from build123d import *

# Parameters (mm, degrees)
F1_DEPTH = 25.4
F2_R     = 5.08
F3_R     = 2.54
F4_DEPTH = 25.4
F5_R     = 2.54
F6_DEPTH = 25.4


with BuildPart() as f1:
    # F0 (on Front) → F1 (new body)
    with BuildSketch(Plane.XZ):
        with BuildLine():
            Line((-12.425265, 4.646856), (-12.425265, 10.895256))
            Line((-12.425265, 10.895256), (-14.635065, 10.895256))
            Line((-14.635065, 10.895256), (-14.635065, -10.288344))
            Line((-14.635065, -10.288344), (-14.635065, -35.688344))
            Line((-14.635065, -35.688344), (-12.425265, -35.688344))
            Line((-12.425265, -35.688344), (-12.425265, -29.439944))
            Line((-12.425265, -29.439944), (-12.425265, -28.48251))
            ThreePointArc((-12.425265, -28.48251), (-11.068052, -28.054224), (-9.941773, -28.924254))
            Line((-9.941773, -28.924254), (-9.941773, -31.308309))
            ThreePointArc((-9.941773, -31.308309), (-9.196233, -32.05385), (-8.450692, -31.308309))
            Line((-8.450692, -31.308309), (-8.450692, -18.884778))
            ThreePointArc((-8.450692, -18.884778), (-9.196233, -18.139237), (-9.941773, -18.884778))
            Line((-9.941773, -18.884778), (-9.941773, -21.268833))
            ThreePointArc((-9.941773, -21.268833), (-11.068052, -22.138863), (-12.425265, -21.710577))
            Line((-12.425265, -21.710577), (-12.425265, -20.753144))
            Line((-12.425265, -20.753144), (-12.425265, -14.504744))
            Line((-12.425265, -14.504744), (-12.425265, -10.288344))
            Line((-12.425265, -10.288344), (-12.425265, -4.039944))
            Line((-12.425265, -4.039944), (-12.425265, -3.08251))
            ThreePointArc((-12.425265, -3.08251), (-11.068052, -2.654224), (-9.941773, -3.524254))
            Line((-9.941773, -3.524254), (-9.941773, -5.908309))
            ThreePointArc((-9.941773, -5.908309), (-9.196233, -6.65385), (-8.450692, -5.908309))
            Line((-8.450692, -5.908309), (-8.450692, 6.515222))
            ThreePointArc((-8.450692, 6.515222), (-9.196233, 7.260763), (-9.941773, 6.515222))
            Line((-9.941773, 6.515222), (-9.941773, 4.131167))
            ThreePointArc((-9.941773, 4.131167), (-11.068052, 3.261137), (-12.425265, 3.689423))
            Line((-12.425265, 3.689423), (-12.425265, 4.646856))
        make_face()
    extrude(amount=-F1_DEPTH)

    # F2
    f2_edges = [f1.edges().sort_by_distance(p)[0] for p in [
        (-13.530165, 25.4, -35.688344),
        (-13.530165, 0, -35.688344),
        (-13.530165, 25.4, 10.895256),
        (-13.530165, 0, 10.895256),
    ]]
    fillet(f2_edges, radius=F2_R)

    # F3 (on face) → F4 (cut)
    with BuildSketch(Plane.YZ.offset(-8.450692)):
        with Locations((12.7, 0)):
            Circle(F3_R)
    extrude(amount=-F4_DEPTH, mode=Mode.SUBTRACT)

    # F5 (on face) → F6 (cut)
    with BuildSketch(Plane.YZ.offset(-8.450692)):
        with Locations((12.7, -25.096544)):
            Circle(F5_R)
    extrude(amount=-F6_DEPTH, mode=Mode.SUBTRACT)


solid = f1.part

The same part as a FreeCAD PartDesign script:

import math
import FreeCAD as App
import Part
import Sketcher

V = App.Vector
Q = App.Units.Quantity


def edges_at(feature, points):
    """Names of the edges that pass closest to the given points."""
    edges = feature.Shape.Edges
    near = lambda p: min(range(len(edges)), key=lambda i: edges[i].distToShape(Part.Vertex(*p))[0])
    return sorted({f"Edge{near(p) + 1}" for p in points})

doc = App.newDocument("Part")
params = doc.addObject("Spreadsheet::Sheet", "Params")
for row, (alias, value) in enumerate([
    ("sketch1_width", "0.087 in"),
    ("sketch1_height", "1.834 in"),
    ("pad1_length", "1 in"),
    ("fillet_radius", "0.2 in"),
    ("sketch2_diameter", "0.2 in"),
    ("pocket1_length", "1 in"),
    ("sketch3_diameter", "0.2 in"),
    ("pocket2_length", "1 in"),
], start=1):
    params.set(f"A{row}", alias)
    params.set(f"B{row}", "=" + value)
    params.setAlias(f"B{row}", alias)

body = doc.addObject("PartDesign::Body", "Body")

# Sketch on XZ plane
sketch1 = doc.addObject("Sketcher::SketchObject", "Sketch")
body.addObject(sketch1)
sketch1.AttachmentSupport = (doc.XZ_Plane, [""])
sketch1.MapMode = "FlatFace"
sketch1.addGeometry([
    Part.LineSegment(V(-12.425265, 10.895256, 0), V(-14.635065, 10.895256, 0)),  # 0
    Part.LineSegment(V(-14.635065, 10.895256, 0), V(-14.635065, -35.688344, 0)),  # 1
    Part.LineSegment(V(-14.635065, -35.688344, 0), V(-12.425265, -35.688344, 0)),  # 2
    Part.LineSegment(V(-12.425265, -35.688344, 0), V(-12.425265, -28.48251, 0)),  # 3
    Part.ArcOfCircle(Part.Circle(V(-11.337034, -29.566444, 0), V(0, 0, 1), 1.535956), math.radians(24.714969), math.radians(135.113355)),  # 4
    Part.LineSegment(V(-9.941773, -28.924254, 0), V(-9.941773, -31.308309, 0)),  # 5
    Part.ArcOfCircle(Part.Circle(V(-9.196233, -31.30831, 0), V(0, 0, 1), 0.745541), math.radians(179.999962), math.radians(360.000038)),  # 6
    Part.LineSegment(V(-8.450692, -31.308309, 0), V(-8.450692, -18.884778, 0)),  # 7
    Part.ArcOfCircle(Part.Circle(V(-9.196233, -18.884777, 0), V(0, 0, 1), 0.745541), math.radians(-0.000038), math.radians(180.000038)),  # 8
    Part.LineSegment(V(-9.941773, -18.884778, 0), V(-9.941773, -21.268833, 0)),  # 9
    Part.ArcOfCircle(Part.Circle(V(-11.337034, -20.626643, 0), V(0, 0, 1), 1.535956), math.radians(-135.113355), math.radians(-24.714969)),  # 10
    Part.LineSegment(V(-12.425265, -21.710577, 0), V(-12.425265, -3.08251, 0)),  # 11
    Part.ArcOfCircle(Part.Circle(V(-11.337034, -4.166444, 0), V(0, 0, 1), 1.535956), math.radians(24.714969), math.radians(135.113355)),  # 12
    Part.LineSegment(V(-9.941773, -3.524254, 0), V(-9.941773, -5.908309, 0)),  # 13
    Part.ArcOfCircle(Part.Circle(V(-9.196233, -5.908309, 0), V(0, 0, 1), 0.745541), math.radians(179.999962), math.radians(360.000038)),  # 14
    Part.LineSegment(V(-8.450692, -5.908309, 0), V(-8.450692, 6.515222, 0)),  # 15
    Part.ArcOfCircle(Part.Circle(V(-9.196233, 6.515223, 0), V(0, 0, 1), 0.745541), math.radians(-0.000038), math.radians(180.000038)),  # 16
    Part.LineSegment(V(-9.941773, 6.515222, 0), V(-9.941773, 4.131167, 0)),  # 17
    Part.ArcOfCircle(Part.Circle(V(-11.337034, 4.773357, 0), V(0, 0, 1), 1.535956), math.radians(-135.113355), math.radians(-24.714969)),  # 18
    Part.LineSegment(V(-12.425265, 3.689423, 0), V(-12.425265, 10.895256, 0)),  # 19
], False)
sketch1.addConstraint([
    Sketcher.Constraint("Coincident", 0, 2, 1, 1),
    Sketcher.Constraint("Coincident", 1, 2, 2, 1),
    Sketcher.Constraint("Coincident", 2, 2, 3, 1),
    Sketcher.Constraint("Coincident", 3, 2, 4, 2),
    Sketcher.Constraint("Coincident", 4, 1, 5, 1),
    Sketcher.Constraint("Tangent", 5, 2, 6, 1),
    Sketcher.Constraint("Tangent", 6, 2, 7, 1),
    Sketcher.Constraint("Tangent", 7, 2, 8, 1),
    Sketcher.Constraint("Tangent", 8, 2, 9, 1),
    Sketcher.Constraint("Coincident", 9, 2, 10, 2),
    Sketcher.Constraint("Coincident", 10, 1, 11, 1),
    Sketcher.Constraint("Coincident", 11, 2, 12, 2),
    Sketcher.Constraint("Coincident", 12, 1, 13, 1),
    Sketcher.Constraint("Tangent", 13, 2, 14, 1),
    Sketcher.Constraint("Tangent", 14, 2, 15, 1),
    Sketcher.Constraint("Tangent", 15, 2, 16, 1),
    Sketcher.Constraint("Tangent", 16, 2, 17, 1),
    Sketcher.Constraint("Coincident", 17, 2, 18, 2),
    Sketcher.Constraint("Coincident", 18, 1, 19, 1),
    Sketcher.Constraint("Coincident", 19, 2, 0, 1),
    Sketcher.Constraint("Horizontal", 0),
    Sketcher.Constraint("Vertical", 1),
    Sketcher.Constraint("Horizontal", 2),
    Sketcher.Constraint("Vertical", 3),
    Sketcher.Constraint("Vertical", 5),
    Sketcher.Constraint("Vertical", 7),
    Sketcher.Constraint("Vertical", 9),
    Sketcher.Constraint("Vertical", 11),
    Sketcher.Constraint("Vertical", 13),
    Sketcher.Constraint("Vertical", 15),
    Sketcher.Constraint("Vertical", 17),
    Sketcher.Constraint("Vertical", 19),
    Sketcher.Constraint("Equal", 6, 8),
    Sketcher.Constraint("Equal", 4, 10),
    Sketcher.Constraint("Equal", 10, 12),
    Sketcher.Constraint("Equal", 8, 14),
    Sketcher.Constraint("Equal", 14, 16),
    Sketcher.Constraint("Equal", 12, 18),
    Sketcher.Constraint("Vertical", 4, 3, 10, 3),
    Sketcher.Constraint("Vertical", 10, 3, 12, 3),
    Sketcher.Constraint("Vertical", 8, 3, 14, 3),
    Sketcher.Constraint("Vertical", 12, 3, 18, 3),
    Sketcher.Constraint("Vertical", 3, 2, 10, 1),
    Sketcher.Constraint("Vertical", 11, 2, 18, 1),
    Sketcher.Constraint("Equal", 5, 9),
    Sketcher.Constraint("Equal", 9, 13),
    Sketcher.Constraint("Equal", 7, 15),
    Sketcher.Constraint("Equal", 13, 17),
    Sketcher.Constraint("Equal", 3, 19),
    Sketcher.Constraint("DistanceY", 4, 3, 12, 3, Q("1 in")),
    Sketcher.Constraint("DistanceX", 0, 2, 0, 1, Q("0.087 in")),
    Sketcher.Constraint("DistanceY", 1, 2, 1, 1, Q("1.834 in")),
    Sketcher.Constraint("Radius", 6, Q("0.745541 mm")),
    Sketcher.Constraint("Radius", 4, Q("1.535956 mm")),
    Sketcher.Constraint("DistanceY", 7, 1, 7, 2, Q("12.423531 mm")),
    Sketcher.Constraint("DistanceX", 4, 3, 6, 3, Q("2.140801 mm")),
    Sketcher.Constraint("DistanceY", 4, 3, 10, 3, Q("8.939801 mm")),
    Sketcher.Constraint("DistanceY", 6, 3, 3, 2, Q("2.825799 mm")),
    Sketcher.Constraint("DistanceY", 6, 3, -1, 1, Q("31.30831 mm")),
    Sketcher.Constraint("DistanceX", 4, 3, -1, 1, Q("11.337034 mm")),
])
sketch1.setExpression("Constraints[50]", "Params.sketch1_width")
sketch1.setExpression("Constraints[51]", "Params.sketch1_height")
pad1 = doc.addObject("PartDesign::Pad", "Pad")
body.addObject(pad1)
pad1.Profile = sketch1
pad1.setExpression("Length", "Params.pad1_length")
pad1.Reversed = True
doc.recompute()

fillet = doc.addObject("PartDesign::Fillet", "Fillet")
body.addObject(fillet)
fillet.Base = (pad1, edges_at(pad1, [
    (-13.53, 25.4, -35.688),
    (-13.53, 0, -35.688),
    (-13.53, 25.4, 10.895),
    (-13.53, 0, 10.895),
]))
fillet.setExpression("Radius", "Params.fillet_radius")

# Sketch on YZ plane
sketch2 = doc.addObject("Sketcher::SketchObject", "Sketch001")
body.addObject(sketch2)
sketch2.AttachmentSupport = (doc.YZ_Plane, [""])
sketch2.MapMode = "FlatFace"
sketch2.AttachmentOffset = App.Placement(V(0, 0, -8.450692), App.Rotation())
sketch2.addGeometry(Part.Circle(V(12.7, 0, 0), V(0, 0, 1), 2.54), False)
sketch2.addConstraint([
    Sketcher.Constraint("PointOnObject", 0, 3, -1),
    Sketcher.Constraint("Diameter", 0, Q("0.2 in")),
    Sketcher.Constraint("DistanceX", -1, 1, 0, 3, Q("0.5 in")),
])
sketch2.setExpression("Constraints[1]", "Params.sketch2_diameter")
pocket1 = doc.addObject("PartDesign::Pocket", "Pocket")
body.addObject(pocket1)
pocket1.Profile = sketch2
pocket1.setExpression("Length", "Params.pocket1_length")

# Sketch on YZ plane
sketch3 = doc.addObject("Sketcher::SketchObject", "Sketch002")
body.addObject(sketch3)
sketch3.AttachmentSupport = (doc.YZ_Plane, [""])
sketch3.MapMode = "FlatFace"
sketch3.AttachmentOffset = App.Placement(V(0, 0, -8.450692), App.Rotation())
sketch3.addGeometry(Part.Circle(V(12.7, -25.096544, 0), V(0, 0, 1), 2.54), False)
sketch3.addConstraint([
    Sketcher.Constraint("Diameter", 0, Q("0.2 in")),
    Sketcher.Constraint("DistanceX", -1, 1, 0, 3, Q("0.5 in")),
    Sketcher.Constraint("DistanceY", 0, 3, -1, 1, Q("25.096544 mm")),
])
sketch3.setExpression("Constraints[0]", "Params.sketch3_diameter")
pocket2 = doc.addObject("PartDesign::Pocket", "Pocket001")
body.addObject(pocket2)
pocket2.Profile = sketch3
pocket2.setExpression("Length", "Params.pocket2_length")

doc.recompute()
